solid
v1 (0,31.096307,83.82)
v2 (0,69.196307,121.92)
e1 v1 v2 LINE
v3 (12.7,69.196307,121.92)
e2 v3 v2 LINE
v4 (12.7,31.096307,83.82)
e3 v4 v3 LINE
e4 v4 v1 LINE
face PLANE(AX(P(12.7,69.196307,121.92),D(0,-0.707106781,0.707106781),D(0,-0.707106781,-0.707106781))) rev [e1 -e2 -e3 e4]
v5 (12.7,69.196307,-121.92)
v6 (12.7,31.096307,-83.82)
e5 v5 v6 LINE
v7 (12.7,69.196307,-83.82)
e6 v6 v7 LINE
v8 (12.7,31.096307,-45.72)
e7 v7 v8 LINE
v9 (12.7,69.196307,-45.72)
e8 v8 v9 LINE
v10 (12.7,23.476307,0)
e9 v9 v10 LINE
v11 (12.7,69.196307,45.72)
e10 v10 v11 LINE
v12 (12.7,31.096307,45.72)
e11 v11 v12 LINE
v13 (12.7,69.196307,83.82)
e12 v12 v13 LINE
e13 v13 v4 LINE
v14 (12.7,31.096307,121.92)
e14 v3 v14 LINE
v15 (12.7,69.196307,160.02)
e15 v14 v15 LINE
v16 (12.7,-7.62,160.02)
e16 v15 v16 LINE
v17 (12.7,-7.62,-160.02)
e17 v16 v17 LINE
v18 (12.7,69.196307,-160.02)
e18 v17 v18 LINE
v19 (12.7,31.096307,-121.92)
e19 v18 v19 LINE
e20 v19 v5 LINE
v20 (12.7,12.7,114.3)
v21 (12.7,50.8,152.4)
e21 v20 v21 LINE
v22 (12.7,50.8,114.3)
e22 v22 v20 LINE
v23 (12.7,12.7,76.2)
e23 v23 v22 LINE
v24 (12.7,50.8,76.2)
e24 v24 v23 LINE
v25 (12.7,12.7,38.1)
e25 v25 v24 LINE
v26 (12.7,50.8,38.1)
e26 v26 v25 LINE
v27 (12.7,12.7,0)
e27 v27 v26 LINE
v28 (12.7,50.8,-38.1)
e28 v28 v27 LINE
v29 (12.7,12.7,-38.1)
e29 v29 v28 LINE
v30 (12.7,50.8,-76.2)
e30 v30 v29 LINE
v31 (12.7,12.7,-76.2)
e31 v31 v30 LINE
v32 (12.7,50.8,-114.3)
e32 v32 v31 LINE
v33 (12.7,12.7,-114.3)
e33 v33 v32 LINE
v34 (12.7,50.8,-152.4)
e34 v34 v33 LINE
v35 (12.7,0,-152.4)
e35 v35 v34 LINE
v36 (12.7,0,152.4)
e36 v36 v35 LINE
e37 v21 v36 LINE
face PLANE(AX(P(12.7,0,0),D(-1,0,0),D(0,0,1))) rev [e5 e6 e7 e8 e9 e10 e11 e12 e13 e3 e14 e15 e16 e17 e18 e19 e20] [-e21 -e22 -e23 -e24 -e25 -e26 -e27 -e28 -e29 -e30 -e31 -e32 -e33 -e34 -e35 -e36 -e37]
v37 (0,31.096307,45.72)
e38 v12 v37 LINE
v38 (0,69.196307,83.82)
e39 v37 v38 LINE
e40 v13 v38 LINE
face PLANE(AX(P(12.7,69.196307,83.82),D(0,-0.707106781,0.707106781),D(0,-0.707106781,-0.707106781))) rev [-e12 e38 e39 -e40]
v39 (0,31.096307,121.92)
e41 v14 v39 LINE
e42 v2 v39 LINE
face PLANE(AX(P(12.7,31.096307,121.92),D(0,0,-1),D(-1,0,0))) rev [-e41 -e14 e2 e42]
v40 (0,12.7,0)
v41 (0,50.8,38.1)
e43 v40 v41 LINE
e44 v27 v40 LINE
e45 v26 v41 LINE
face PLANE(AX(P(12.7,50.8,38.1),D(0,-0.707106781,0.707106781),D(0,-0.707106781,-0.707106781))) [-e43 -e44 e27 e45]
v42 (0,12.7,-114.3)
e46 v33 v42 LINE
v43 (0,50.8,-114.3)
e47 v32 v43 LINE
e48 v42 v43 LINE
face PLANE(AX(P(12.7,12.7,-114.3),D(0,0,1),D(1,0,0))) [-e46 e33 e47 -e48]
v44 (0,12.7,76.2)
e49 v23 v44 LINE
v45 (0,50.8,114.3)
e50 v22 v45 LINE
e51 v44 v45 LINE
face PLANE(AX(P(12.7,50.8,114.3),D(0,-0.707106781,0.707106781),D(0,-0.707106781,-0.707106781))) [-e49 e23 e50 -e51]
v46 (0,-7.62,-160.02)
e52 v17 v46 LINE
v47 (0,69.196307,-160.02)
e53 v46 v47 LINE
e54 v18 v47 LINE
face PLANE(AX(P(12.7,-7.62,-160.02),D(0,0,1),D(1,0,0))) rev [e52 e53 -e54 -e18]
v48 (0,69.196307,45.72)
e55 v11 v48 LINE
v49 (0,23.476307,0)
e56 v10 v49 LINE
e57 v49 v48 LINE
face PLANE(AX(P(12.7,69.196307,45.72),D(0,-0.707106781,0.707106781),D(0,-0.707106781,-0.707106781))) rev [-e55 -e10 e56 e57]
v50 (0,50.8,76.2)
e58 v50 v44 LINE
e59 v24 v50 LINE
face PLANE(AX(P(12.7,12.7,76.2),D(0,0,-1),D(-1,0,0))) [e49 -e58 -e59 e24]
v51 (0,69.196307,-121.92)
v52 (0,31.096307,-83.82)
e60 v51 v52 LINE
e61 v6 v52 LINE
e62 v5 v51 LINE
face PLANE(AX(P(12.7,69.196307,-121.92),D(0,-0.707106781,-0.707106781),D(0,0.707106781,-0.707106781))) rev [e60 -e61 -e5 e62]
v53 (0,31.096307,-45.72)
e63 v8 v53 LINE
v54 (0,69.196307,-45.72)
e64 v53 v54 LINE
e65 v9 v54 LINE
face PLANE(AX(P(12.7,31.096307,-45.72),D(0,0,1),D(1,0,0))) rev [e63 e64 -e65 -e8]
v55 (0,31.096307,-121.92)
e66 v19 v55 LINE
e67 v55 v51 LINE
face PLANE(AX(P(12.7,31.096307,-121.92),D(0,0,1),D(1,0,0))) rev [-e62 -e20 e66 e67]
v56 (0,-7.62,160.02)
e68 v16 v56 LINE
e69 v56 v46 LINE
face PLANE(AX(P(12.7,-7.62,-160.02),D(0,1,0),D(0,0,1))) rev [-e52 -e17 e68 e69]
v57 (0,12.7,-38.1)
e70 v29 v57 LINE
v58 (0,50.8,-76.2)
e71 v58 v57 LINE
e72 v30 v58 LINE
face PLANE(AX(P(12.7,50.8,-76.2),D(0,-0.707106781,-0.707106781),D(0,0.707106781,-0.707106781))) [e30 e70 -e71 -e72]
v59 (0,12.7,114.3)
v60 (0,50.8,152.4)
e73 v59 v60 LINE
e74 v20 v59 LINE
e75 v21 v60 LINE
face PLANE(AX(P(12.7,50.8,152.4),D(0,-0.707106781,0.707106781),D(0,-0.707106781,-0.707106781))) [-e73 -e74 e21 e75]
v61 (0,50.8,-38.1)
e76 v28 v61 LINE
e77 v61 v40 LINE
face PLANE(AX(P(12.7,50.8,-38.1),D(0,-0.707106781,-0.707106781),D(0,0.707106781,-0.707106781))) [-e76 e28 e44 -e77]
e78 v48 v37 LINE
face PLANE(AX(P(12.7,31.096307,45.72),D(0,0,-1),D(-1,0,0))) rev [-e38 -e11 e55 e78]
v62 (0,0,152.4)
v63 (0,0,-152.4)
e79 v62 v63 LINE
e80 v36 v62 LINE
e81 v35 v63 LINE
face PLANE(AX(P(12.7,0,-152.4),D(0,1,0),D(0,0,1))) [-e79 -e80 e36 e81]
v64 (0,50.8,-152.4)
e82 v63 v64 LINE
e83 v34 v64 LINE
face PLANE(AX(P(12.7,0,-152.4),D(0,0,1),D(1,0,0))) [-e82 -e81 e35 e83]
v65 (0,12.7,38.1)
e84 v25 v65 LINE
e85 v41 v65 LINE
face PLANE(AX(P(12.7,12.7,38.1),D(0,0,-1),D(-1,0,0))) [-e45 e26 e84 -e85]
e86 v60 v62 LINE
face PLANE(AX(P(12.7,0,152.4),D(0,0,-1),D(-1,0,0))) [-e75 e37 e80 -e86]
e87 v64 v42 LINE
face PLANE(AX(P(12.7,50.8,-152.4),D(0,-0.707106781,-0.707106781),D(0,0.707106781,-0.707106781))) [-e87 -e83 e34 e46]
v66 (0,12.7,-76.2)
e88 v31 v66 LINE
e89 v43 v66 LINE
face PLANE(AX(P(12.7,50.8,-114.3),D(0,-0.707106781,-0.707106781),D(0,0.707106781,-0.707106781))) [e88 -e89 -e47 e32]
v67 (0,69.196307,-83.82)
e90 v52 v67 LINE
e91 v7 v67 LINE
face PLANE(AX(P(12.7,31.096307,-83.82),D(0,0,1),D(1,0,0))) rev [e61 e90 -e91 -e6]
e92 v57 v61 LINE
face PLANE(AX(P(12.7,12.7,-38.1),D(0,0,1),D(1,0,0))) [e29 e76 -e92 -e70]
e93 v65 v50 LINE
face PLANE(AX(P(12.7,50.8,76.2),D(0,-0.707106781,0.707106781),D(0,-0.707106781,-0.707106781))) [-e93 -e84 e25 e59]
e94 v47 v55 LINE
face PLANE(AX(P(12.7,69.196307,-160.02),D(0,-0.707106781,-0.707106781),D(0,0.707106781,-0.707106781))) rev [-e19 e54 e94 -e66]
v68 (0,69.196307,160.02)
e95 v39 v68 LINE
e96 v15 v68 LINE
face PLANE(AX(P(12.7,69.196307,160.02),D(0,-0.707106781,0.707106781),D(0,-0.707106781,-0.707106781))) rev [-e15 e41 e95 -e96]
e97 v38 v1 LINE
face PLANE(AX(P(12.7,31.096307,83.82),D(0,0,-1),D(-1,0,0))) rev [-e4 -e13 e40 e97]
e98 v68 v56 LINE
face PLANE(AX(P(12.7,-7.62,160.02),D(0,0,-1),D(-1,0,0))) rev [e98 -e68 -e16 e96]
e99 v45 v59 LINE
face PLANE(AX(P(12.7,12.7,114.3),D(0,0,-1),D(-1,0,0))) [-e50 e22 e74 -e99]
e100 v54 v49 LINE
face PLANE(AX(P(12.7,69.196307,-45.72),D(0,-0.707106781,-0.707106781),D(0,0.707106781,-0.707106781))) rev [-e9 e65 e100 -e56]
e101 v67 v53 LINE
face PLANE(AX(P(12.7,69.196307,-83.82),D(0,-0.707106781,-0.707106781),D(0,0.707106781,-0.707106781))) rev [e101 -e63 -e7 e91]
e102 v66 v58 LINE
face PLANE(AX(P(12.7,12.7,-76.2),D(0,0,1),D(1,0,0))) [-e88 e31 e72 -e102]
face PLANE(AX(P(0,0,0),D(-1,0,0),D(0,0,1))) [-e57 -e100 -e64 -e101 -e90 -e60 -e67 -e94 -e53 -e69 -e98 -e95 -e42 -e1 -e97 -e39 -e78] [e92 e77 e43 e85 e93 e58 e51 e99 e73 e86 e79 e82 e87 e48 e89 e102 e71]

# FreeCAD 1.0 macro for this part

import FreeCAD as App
import Part
import Sketcher

V = App.Vector
Q = App.Units.Quantity

doc = App.newDocument("Part")
body = doc.addObject("PartDesign::Body", "Body")

# Sketch on YZ plane
sketch1 = doc.addObject("Sketcher::SketchObject", "Sketch")
body.addObject(sketch1)
sketch1.AttachmentSupport = (doc.YZ_Plane, [""])
sketch1.MapMode = "FlatFace"
sketch1.addGeometry(Part.LineSegment(V(69, 160, 0), V(-8, 160, 0)), False)
sketch1.addGeometry(Part.LineSegment(V(-8, 160, 0), V(-8, -160, 0)), False)
sketch1.addGeometry(Part.LineSegment(V(-8, -160, 0), V(69, -160, 0)), False)
sketch1.addGeometry(Part.LineSegment(V(69, -160, 0), V(31, -122, 0)), False)
sketch1.addGeometry(Part.LineSegment(V(31, -122, 0), V(69, -122, 0)), False)
sketch1.addGeometry(Part.LineSegment(V(69, -122, 0), V(31, -84, 0)), False)
sketch1.addGeometry(Part.LineSegment(V(31, -84, 0), V(69, -84, 0)), False)
sketch1.addGeometry(Part.LineSegment(V(69, -84, 0), V(31, -46, 0)), False)
sketch1.addGeometry(Part.LineSegment(V(31, -46, 0), V(69, -46, 0)), False)
sketch1.addGeometry(Part.LineSegment(V(69, -46, 0), V(23, 0, 0)), False)
sketch1.addGeometry(Part.LineSegment(V(23, 0, 0), V(69, 46, 0)), False)
sketch1.addGeometry(Part.LineSegment(V(69, 46, 0), V(31, 46, 0)), False)
sketch1.addGeometry(Part.LineSegment(V(31, 46, 0), V(69, 84, 0)), False)
sketch1.addGeometry(Part.LineSegment(V(69, 84, 0), V(31, 84, 0)), False)
sketch1.addGeometry(Part.LineSegment(V(31, 84, 0), V(69, 122, 0)), False)
sketch1.addGeometry(Part.LineSegment(V(69, 122, 0), V(31, 122, 0)), False)
sketch1.addGeometry(Part.LineSegment(V(31, 122, 0), V(69, 160, 0)), False)
sketch1.addGeometry(Part.LineSegment(V(13, -38, 0), V(51, -76, 0)), False)
sketch1.addGeometry(Part.LineSegment(V(51, -76, 0), V(13, -76, 0)), False)
sketch1.addGeometry(Part.LineSegment(V(13, -76, 0), V(51, -114, 0)), False)
sketch1.addGeometry(Part.LineSegment(V(51, -114, 0), V(13, -114, 0)), False)
sketch1.addGeometry(Part.LineSegment(V(13, -114, 0), V(51, -152, 0)), False)
sketch1.addGeometry(Part.LineSegment(V(51, -152, 0), V(0, -152, 0)), False)
sketch1.addGeometry(Part.LineSegment(V(0, -152, 0), V(0, 152, 0)), False)
sketch1.addGeometry(Part.LineSegment(V(0, 152, 0), V(51, 152, 0)), False)
sketch1.addGeometry(Part.LineSegment(V(51, 152, 0), V(13, 114, 0)), False)
sketch1.addGeometry(Part.LineSegment(V(13, 114, 0), V(51, 114, 0)), False)
sketch1.addGeometry(Part.LineSegment(V(51, 114, 0), V(13, 76, 0)), False)
sketch1.addGeometry(Part.LineSegment(V(13, 76, 0), V(51, 76, 0)), False)
sketch1.addGeometry(Part.LineSegment(V(51, 76, 0), V(13, 38, 0)), False)
sketch1.addGeometry(Part.LineSegment(V(13, 38, 0), V(51, 38, 0)), False)
sketch1.addGeometry(Part.LineSegment(V(51, 38, 0), V(13, 0, 0)), False)
sketch1.addGeometry(Part.LineSegment(V(13, 0, 0), V(51, -38, 0)), False)
sketch1.addGeometry(Part.LineSegment(V(51, -38, 0), V(13, -38, 0)), False)
sketch1.addConstraint(Sketcher.Constraint("Coincident", 0, 2, 1, 1))
sketch1.addConstraint(Sketcher.Constraint("Coincident", 1, 2, 2, 1))
sketch1.addConstraint(Sketcher.Constraint("Coincident", 2, 2, 3, 1))
sketch1.addConstraint(Sketcher.Constraint("Coincident", 3, 2, 4, 1))
sketch1.addConstraint(Sketcher.Constraint("Coincident", 4, 2, 5, 1))
sketch1.addConstraint(Sketcher.Constraint("Coincident", 5, 2, 6, 1))
sketch1.addConstraint(Sketcher.Constraint("Coincident", 6, 2, 7, 1))
sketch1.addConstraint(Sketcher.Constraint("Coincident", 7, 2, 8, 1))
sketch1.addConstraint(Sketcher.Constraint("Coincident", 8, 2, 9, 1))
sketch1.addConstraint(Sketcher.Constraint("Coincident", 9, 2, 10, 1))
sketch1.addConstraint(Sketcher.Constraint("Coincident", 10, 2, 11, 1))
sketch1.addConstraint(Sketcher.Constraint("Coincident", 11, 2, 12, 1))
sketch1.addConstraint(Sketcher.Constraint("Coincident", 12, 2, 13, 1))
sketch1.addConstraint(Sketcher.Constraint("Coincident", 13, 2, 14, 1))
sketch1.addConstraint(Sketcher.Constraint("Coincident", 14, 2, 15, 1))
sketch1.addConstraint(Sketcher.Constraint("Coincident", 15, 2, 16, 1))
sketch1.addConstraint(Sketcher.Constraint("Coincident", 16, 2, 0, 1))
sketch1.addConstraint(Sketcher.Constraint("Coincident", 17, 2, 18, 1))
sketch1.addConstraint(Sketcher.Constraint("Coincident", 18, 2, 19, 1))
sketch1.addConstraint(Sketcher.Constraint("Coincident", 19, 2, 20, 1))
sketch1.addConstraint(Sketcher.Constraint("Coincident", 20, 2, 21, 1))
sketch1.addConstraint(Sketcher.Constraint("Coincident", 21, 2, 22, 1))
sketch1.addConstraint(Sketcher.Constraint("Coincident", 22, 2, 23, 1))
sketch1.addConstraint(Sketcher.Constraint("Coincident", 23, 2, 24, 1))
sketch1.addConstraint(Sketcher.Constraint("Coincident", 24, 2, 25, 1))
sketch1.addConstraint(Sketcher.Constraint("Coincident", 25, 2, 26, 1))
sketch1.addConstraint(Sketcher.Constraint("Coincident", 26, 2, 27, 1))
sketch1.addConstraint(Sketcher.Constraint("Coincident", 27, 2, 28, 1))
sketch1.addConstraint(Sketcher.Constraint("Coincident", 28, 2, 29, 1))
sketch1.addConstraint(Sketcher.Constraint("Coincident", 29, 2, 30, 1))
sketch1.addConstraint(Sketcher.Constraint("Coincident", 30, 2, 31, 1))
sketch1.addConstraint(Sketcher.Constraint("Coincident", 31, 2, 32, 1))
sketch1.addConstraint(Sketcher.Constraint("Coincident", 32, 2, 33, 1))
sketch1.addConstraint(Sketcher.Constraint("Coincident", 33, 2, 17, 1))
sketch1.addConstraint(Sketcher.Constraint("Horizontal", 0))
sketch1.addConstraint(Sketcher.Constraint("Vertical", 1))
sketch1.addConstraint(Sketcher.Constraint("Horizontal", 2))
sketch1.addConstraint(Sketcher.Constraint("Horizontal", 4))
sketch1.addConstraint(Sketcher.Constraint("Horizontal", 6))
sketch1.addConstraint(Sketcher.Constraint("Horizontal", 8))
sketch1.addConstraint(Sketcher.Constraint("Horizontal", 11))
sketch1.addConstraint(Sketcher.Constraint("Horizontal", 13))
sketch1.addConstraint(Sketcher.Constraint("Horizontal", 15))
sketch1.addConstraint(Sketcher.Constraint("Horizontal", 18))
sketch1.addConstraint(Sketcher.Constraint("Horizontal", 20))
sketch1.addConstraint(Sketcher.Constraint("Horizontal", 22))
sketch1.addConstraint(Sketcher.Constraint("Vertical", 23))
sketch1.addConstraint(Sketcher.Constraint("Horizontal", 24))
sketch1.addConstraint(Sketcher.Constraint("Horizontal", 26))
sketch1.addConstraint(Sketcher.Constraint("Horizontal", 28))
sketch1.addConstraint(Sketcher.Constraint("Horizontal", 30))
sketch1.addConstraint(Sketcher.Constraint("Horizontal", 33))
sketch1.addConstraint(Sketcher.Constraint("Symmetric", 22, 2, 23, 2, -1, 1))
sketch1.addConstraint(Sketcher.Constraint("Symmetric", 8, 2, 10, 2, -1))
sketch1.addConstraint(Sketcher.Constraint("Symmetric", 6, 2, 12, 2, -1))
sketch1.addConstraint(Sketcher.Constraint("Symmetric", 4, 2, 14, 2, -1))
sketch1.addConstraint(Sketcher.Constraint("Symmetric", 2, 2, 16, 2, -1))
sketch1.addConstraint(Sketcher.Constraint("Symmetric", 20, 2, 25, 2, -1))
sketch1.addConstraint(Sketcher.Constraint("Symmetric", 18, 2, 27, 2, -1))
sketch1.addConstraint(Sketcher.Constraint("Symmetric", 30, 2, 32, 2, -1))
sketch1.addConstraint(Sketcher.Constraint("PointOnObject", 9, 2, -1))
sketch1.addConstraint(Sketcher.Constraint("PointOnObject", 31, 2, -1))
sketch1.addConstraint(Sketcher.Constraint("Parallel", 3, 5))
sketch1.addConstraint(Sketcher.Constraint("Parallel", 5, 7))
sketch1.addConstraint(Sketcher.Constraint("Parallel", 7, 9))
sketch1.addConstraint(Sketcher.Constraint("Perpendicular", 9, 10))
sketch1.addConstraint(Sketcher.Constraint("Parallel", 10, 12))
sketch1.addConstraint(Sketcher.Constraint("Parallel", 12, 14))
sketch1.addConstraint(Sketcher.Constraint("Parallel", 14, 16))
sketch1.addConstraint(Sketcher.Constraint("Perpendicular", 16, 17))
sketch1.addConstraint(Sketcher.Constraint("Parallel", 17, 19))
sketch1.addConstraint(Sketcher.Constraint("Parallel", 19, 21))
sketch1.addConstraint(Sketcher.Constraint("Perpendicular", 21, 25))
sketch1.addConstraint(Sketcher.Constraint("Parallel", 25, 27))
sketch1.addConstraint(Sketcher.Constraint("Parallel", 27, 29))
sketch1.addConstraint(Sketcher.Constraint("Parallel", 29, 31))
sketch1.addConstraint(Sketcher.Constraint("Vertical", 2, 2, 4, 2))
sketch1.addConstraint(Sketcher.Constraint("Vertical", 3, 2, 5, 2))
sketch1.addConstraint(Sketcher.Constraint("Vertical", 4, 2, 6, 2))
sketch1.addConstraint(Sketcher.Constraint("Vertical", 5, 2, 7, 2))
sketch1.addConstraint(Sketcher.Constraint("Vertical", 6, 2, 8, 2))
sketch1.addConstraint(Sketcher.Constraint("Vertical", 17, 2, 19, 2))
sketch1.addConstraint(Sketcher.Constraint("Vertical", 18, 2, 20, 2))
sketch1.addConstraint(Sketcher.Constraint("Vertical", 19, 2, 21, 2))
sketch1.addConstraint(Sketcher.Constraint("Vertical", 26, 2, 28, 2))
sketch1.addConstraint(Sketcher.Constraint("Vertical", 27, 2, 29, 2))
sketch1.addConstraint(Sketcher.Constraint("Vertical", 28, 2, 30, 2))
sketch1.addConstraint(Sketcher.Constraint("Vertical", 29, 2, 31, 2))
sketch1.addConstraint(Sketcher.Constraint("Equal", 15, 18))
sketch1.addConstraint(Sketcher.Constraint("DistanceX", 22, 2, 22, 1, Q("2 in")))
sketch1.addConstraint(Sketcher.Constraint("DistanceY", 23, 1, 23, 2, Q("12 in")))
sketch1.addConstraint(Sketcher.Constraint("DistanceY", 1, 2, 1, 1, Q("12.6 in")))
sketch1.addConstraint(Sketcher.Constraint("DistanceX", 0, 2, -1, 1, Q("0.3 in")))
sketch1.addConstraint(Sketcher.Constraint("DistanceX", 0, 2, 0, 1, Q("76.816307 mm")))
pad1 = doc.addObject("PartDesign::Pad", "Pad")
body.addObject(pad1)
pad1.Profile = sketch1
pad1.Length = Q("0.5 in")

doc.recompute()
